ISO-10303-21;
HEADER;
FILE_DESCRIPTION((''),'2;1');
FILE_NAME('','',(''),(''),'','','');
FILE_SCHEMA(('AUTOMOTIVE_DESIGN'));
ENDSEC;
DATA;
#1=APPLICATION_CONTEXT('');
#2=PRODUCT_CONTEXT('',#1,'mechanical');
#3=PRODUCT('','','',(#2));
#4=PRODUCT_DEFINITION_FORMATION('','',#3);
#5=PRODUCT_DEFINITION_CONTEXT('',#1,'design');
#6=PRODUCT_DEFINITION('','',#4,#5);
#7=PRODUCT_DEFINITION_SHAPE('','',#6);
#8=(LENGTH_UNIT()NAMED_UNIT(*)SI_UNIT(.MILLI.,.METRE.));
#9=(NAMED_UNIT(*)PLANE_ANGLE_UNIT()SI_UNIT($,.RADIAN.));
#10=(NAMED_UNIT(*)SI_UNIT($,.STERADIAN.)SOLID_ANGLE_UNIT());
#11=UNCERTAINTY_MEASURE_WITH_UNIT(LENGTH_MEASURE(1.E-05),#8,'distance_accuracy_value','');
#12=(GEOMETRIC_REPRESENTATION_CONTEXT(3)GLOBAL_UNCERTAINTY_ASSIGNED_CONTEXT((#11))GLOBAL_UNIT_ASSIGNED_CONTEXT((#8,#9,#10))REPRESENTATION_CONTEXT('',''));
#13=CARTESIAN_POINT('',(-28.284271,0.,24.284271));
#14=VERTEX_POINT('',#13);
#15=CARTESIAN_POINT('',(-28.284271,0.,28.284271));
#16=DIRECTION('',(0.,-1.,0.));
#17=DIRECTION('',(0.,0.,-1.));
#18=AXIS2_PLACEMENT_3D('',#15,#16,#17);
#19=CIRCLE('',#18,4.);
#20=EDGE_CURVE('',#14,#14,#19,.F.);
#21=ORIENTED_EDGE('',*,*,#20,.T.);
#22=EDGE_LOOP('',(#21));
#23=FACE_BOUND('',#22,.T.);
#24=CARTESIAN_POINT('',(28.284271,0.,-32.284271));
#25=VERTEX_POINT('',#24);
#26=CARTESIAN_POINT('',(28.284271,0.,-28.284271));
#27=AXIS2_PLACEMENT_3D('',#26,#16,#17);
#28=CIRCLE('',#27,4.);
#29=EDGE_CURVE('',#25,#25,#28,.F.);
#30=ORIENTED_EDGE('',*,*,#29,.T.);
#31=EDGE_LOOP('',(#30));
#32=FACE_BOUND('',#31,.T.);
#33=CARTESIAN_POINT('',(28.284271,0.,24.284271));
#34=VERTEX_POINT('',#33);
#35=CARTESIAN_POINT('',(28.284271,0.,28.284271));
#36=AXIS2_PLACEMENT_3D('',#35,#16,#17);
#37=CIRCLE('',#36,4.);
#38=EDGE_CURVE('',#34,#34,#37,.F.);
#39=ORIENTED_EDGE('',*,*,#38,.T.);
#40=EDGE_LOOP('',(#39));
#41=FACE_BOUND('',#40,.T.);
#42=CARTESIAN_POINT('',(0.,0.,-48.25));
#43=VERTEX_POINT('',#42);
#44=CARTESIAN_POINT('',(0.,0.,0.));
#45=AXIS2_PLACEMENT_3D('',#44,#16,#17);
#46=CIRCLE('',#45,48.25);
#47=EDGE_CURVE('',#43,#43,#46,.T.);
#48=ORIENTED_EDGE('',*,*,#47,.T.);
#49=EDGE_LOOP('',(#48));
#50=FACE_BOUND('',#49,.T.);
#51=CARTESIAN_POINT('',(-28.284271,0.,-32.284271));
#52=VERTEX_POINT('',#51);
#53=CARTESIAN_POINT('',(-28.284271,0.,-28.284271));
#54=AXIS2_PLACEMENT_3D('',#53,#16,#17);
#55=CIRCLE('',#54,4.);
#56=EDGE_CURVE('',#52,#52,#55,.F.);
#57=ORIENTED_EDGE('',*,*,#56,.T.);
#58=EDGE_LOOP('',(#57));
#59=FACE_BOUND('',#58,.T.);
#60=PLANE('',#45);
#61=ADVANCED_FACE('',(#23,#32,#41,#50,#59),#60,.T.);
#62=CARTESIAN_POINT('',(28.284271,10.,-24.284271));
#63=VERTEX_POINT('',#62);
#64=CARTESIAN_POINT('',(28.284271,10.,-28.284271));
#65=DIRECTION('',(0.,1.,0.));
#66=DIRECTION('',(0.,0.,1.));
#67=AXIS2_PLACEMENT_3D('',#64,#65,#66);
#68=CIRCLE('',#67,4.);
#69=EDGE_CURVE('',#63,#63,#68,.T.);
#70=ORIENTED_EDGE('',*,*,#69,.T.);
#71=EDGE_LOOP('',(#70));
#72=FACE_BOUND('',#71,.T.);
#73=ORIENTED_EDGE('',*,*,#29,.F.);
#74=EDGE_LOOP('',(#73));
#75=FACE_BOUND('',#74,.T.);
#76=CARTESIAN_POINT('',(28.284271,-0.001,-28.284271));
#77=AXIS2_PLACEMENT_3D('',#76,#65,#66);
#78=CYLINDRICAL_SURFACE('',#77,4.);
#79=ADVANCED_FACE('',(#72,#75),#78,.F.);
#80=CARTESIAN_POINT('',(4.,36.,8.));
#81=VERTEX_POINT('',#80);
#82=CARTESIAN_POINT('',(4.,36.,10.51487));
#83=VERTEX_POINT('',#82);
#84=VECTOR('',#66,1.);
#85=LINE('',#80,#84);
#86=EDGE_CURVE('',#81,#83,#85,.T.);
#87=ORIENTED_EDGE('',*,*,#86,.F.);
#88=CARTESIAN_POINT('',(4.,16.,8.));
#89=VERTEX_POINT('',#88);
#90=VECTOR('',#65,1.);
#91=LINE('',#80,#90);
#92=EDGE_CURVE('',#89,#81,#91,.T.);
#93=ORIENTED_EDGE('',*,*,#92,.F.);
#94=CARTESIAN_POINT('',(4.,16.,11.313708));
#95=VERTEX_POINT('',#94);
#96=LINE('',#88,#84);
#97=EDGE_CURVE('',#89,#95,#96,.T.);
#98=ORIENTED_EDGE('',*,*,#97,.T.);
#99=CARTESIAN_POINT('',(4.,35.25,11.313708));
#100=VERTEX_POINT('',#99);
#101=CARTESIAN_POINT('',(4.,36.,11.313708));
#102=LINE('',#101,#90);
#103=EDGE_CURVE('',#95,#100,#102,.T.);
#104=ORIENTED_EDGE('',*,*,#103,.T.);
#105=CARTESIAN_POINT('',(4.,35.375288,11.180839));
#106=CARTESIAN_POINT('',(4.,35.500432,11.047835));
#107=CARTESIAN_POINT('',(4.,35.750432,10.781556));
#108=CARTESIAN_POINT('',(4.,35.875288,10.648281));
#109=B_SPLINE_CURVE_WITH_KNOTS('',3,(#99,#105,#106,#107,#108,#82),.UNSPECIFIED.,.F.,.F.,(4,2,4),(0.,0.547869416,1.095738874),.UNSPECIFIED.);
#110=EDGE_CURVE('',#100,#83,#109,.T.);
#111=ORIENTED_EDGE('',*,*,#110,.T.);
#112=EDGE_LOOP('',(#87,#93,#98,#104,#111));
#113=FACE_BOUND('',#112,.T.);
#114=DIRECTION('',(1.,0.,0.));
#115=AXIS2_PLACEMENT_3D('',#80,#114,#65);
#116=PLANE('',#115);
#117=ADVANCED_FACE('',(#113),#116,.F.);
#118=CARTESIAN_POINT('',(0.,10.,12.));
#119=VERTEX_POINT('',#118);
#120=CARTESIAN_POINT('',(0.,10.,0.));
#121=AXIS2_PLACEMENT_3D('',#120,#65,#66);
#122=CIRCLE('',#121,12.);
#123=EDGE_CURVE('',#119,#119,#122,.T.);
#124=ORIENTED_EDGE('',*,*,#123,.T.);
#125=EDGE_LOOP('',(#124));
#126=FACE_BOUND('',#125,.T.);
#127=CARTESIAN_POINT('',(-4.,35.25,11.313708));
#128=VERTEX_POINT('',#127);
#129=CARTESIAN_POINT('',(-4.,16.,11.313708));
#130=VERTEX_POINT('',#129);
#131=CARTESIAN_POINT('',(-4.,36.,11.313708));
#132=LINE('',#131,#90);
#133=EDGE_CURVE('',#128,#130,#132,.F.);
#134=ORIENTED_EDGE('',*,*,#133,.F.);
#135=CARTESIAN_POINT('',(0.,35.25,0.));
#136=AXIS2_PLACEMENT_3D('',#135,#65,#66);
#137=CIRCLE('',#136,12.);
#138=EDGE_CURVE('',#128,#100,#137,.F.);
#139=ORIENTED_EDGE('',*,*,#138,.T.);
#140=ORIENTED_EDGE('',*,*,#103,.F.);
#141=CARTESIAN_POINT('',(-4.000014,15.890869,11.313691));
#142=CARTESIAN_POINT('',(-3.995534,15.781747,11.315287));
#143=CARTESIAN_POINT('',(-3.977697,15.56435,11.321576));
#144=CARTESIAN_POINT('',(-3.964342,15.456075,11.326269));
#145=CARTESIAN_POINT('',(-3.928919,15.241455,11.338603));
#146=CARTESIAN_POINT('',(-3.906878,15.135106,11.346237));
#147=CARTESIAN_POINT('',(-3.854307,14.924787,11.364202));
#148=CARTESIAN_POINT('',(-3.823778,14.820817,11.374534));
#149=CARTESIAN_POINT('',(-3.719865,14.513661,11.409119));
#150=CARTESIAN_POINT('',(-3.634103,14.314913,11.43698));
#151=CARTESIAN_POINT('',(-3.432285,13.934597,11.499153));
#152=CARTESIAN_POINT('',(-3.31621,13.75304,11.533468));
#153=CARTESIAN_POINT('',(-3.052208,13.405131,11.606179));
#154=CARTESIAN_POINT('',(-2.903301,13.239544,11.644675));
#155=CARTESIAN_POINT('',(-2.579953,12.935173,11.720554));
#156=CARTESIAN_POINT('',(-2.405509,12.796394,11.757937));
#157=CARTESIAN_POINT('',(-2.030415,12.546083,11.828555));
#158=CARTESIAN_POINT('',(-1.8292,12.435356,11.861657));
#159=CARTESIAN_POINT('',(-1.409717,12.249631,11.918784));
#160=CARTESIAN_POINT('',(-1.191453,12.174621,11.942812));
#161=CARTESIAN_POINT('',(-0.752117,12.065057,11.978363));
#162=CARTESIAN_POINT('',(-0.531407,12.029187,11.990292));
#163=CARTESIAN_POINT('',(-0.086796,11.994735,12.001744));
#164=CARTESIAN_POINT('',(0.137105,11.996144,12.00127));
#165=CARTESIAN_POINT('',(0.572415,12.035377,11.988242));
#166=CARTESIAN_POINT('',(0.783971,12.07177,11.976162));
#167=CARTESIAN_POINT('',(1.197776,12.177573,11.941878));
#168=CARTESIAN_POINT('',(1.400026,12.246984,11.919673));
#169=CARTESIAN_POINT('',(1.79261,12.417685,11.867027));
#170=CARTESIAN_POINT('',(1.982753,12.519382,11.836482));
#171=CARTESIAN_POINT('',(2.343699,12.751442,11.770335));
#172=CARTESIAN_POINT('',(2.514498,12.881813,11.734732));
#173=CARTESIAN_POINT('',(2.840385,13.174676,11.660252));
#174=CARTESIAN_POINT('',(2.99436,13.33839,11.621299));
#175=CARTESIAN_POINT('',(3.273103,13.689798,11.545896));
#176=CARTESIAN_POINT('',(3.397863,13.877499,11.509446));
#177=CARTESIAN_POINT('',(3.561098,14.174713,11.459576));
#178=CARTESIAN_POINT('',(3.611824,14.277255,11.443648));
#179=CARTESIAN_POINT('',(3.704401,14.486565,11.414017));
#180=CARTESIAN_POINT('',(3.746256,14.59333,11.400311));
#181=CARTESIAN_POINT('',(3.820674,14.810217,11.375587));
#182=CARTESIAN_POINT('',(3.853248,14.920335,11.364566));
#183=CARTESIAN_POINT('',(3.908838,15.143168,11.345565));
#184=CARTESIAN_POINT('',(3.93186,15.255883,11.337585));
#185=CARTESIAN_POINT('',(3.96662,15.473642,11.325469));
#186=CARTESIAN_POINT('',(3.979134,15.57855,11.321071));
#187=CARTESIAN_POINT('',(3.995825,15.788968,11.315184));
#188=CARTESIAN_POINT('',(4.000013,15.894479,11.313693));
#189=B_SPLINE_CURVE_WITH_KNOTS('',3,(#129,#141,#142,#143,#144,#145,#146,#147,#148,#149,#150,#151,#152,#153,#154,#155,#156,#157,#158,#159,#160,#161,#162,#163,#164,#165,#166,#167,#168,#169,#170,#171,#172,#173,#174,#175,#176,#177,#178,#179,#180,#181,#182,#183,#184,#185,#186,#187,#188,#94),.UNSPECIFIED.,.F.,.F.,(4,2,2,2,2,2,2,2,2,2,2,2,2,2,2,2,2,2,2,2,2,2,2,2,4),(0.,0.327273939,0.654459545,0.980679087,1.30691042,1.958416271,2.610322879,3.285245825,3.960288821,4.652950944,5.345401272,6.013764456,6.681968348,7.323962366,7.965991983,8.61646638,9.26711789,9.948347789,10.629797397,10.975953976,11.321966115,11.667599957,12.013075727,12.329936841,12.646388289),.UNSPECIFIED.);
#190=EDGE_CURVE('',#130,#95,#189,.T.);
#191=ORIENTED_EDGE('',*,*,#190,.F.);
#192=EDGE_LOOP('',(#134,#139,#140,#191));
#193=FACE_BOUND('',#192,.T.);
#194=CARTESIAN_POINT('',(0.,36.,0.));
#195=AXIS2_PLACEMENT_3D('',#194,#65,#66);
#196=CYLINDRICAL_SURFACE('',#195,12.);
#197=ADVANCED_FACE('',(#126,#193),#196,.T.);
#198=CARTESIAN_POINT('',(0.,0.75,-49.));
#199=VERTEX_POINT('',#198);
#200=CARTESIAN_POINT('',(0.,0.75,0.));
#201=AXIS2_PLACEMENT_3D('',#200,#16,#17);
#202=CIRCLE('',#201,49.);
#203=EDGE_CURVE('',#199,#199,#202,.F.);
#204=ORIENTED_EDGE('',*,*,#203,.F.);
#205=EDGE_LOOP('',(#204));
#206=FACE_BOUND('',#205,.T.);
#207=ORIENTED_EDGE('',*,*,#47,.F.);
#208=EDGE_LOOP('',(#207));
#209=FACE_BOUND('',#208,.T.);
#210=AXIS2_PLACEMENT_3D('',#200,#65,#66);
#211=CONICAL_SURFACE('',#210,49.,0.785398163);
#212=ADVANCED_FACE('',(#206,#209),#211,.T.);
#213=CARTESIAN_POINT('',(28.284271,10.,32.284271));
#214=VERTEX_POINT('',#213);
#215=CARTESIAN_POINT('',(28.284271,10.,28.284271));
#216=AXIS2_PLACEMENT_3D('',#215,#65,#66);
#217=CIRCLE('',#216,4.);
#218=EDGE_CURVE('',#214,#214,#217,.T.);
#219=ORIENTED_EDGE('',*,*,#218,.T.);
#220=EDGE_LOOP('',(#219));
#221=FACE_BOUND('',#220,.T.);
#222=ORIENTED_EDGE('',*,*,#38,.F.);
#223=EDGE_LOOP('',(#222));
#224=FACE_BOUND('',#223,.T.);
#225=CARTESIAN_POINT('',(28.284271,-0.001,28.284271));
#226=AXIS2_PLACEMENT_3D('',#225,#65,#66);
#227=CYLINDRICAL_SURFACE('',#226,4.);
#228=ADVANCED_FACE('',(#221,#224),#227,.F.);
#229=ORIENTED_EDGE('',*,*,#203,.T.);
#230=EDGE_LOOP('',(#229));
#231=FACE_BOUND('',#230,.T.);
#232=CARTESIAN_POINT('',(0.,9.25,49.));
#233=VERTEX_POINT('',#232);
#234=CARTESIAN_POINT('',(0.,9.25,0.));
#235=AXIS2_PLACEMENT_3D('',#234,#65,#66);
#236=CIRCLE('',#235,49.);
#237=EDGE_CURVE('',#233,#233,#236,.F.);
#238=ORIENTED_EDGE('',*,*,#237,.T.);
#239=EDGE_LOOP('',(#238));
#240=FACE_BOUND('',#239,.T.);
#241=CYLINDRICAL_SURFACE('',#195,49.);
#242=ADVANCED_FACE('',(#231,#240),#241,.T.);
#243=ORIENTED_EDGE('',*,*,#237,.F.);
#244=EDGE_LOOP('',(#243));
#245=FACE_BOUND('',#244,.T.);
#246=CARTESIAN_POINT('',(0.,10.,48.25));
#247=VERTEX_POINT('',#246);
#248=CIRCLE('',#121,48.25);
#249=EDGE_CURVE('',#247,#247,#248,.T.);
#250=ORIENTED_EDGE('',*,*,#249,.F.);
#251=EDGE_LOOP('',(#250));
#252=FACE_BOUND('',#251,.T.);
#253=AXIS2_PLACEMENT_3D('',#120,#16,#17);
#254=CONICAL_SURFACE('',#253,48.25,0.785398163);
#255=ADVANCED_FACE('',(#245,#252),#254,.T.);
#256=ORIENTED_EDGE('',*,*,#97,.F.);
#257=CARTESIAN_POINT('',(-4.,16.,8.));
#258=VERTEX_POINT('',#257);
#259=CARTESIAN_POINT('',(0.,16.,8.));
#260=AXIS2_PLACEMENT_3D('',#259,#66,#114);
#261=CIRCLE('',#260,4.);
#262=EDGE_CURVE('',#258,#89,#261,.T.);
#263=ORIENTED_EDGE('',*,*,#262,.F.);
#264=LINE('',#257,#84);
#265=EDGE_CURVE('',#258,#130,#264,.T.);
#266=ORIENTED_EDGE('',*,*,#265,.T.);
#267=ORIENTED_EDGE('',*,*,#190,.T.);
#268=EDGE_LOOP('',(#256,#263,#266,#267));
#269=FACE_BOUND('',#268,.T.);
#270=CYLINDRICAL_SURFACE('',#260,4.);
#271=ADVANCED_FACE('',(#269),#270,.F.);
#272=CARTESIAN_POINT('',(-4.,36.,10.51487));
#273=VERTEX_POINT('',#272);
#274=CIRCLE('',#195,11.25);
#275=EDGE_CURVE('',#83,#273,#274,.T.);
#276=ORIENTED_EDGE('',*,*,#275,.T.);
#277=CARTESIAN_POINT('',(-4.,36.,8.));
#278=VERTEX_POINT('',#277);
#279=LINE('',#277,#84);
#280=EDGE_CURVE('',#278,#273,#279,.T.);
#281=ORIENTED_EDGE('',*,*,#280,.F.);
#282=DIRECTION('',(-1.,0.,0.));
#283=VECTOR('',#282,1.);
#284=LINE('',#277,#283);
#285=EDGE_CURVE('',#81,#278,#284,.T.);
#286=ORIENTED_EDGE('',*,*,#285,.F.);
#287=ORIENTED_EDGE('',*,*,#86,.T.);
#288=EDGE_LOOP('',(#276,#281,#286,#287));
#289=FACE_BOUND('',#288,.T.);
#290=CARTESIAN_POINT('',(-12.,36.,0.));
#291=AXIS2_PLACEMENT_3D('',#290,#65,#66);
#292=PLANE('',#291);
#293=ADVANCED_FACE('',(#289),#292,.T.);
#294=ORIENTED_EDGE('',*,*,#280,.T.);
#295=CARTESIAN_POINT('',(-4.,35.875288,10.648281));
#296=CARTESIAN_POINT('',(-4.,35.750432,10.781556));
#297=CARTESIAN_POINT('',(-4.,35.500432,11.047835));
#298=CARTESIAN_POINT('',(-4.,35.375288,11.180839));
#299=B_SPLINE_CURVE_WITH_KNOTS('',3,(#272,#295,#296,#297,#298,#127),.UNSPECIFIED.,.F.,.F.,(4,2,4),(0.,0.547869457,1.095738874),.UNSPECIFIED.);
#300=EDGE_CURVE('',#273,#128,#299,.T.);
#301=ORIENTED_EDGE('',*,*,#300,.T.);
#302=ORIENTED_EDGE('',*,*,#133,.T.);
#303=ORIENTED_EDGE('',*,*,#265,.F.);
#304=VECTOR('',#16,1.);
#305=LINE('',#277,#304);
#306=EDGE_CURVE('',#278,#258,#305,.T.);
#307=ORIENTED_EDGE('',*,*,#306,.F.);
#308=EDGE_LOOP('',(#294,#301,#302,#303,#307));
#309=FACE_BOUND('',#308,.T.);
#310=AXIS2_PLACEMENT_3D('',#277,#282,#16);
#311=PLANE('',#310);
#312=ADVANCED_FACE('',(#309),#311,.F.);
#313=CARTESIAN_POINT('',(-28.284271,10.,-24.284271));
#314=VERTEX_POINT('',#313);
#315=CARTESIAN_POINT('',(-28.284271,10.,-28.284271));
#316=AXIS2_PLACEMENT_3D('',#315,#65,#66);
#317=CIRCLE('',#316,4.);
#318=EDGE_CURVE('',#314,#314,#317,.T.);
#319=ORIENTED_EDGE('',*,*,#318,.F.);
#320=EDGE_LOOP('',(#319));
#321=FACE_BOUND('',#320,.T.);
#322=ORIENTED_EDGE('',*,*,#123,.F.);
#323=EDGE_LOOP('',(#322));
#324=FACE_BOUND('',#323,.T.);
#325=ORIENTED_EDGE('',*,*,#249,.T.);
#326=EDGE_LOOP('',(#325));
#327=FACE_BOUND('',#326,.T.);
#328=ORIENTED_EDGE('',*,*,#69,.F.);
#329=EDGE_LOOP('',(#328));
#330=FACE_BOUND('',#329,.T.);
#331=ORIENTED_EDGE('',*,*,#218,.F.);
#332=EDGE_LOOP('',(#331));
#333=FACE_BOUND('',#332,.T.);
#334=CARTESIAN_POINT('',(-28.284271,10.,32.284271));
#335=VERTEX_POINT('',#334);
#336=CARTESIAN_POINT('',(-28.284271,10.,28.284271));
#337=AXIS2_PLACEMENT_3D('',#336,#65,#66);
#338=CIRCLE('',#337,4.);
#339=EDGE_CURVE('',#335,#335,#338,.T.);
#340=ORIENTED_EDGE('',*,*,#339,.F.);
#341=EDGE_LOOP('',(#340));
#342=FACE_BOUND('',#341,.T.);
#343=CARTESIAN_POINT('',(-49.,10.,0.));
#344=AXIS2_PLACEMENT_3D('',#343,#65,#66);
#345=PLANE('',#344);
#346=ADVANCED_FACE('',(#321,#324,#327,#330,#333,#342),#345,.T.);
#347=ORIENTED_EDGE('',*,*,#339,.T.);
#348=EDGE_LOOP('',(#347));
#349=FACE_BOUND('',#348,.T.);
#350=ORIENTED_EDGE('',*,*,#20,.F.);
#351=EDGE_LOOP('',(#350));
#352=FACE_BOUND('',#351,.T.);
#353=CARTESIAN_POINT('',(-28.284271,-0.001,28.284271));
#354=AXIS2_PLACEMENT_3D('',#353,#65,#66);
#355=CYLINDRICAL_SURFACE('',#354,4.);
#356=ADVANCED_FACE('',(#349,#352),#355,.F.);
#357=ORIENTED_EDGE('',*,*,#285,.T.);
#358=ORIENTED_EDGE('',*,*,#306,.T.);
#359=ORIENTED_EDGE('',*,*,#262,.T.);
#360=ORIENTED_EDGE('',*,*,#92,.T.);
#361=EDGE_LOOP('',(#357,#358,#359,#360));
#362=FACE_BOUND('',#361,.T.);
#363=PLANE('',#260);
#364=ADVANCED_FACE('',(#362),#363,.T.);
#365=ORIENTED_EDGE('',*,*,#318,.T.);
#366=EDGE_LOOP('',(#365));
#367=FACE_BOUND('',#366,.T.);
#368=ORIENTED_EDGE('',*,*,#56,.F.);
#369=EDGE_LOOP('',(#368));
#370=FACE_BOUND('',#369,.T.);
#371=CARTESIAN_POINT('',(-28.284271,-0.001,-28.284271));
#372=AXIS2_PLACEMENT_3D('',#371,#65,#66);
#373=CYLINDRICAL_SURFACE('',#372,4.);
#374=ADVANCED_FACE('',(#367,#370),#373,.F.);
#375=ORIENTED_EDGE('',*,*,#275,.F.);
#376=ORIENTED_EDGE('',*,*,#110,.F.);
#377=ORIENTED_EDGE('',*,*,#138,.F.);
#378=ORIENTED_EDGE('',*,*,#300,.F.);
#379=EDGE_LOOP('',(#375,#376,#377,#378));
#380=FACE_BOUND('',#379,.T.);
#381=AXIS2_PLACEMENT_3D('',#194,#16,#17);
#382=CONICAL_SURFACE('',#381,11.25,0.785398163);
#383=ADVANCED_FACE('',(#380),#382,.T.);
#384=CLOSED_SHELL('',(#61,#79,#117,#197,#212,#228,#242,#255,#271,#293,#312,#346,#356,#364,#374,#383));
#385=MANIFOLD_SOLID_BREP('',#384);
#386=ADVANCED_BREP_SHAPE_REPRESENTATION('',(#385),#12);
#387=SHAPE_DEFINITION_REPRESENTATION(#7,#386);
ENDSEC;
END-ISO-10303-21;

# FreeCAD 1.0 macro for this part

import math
import FreeCAD as App
import Part
import Sketcher


def edges_at(feature, points):
    """Names of the edges that pass closest to the given points."""
    edges = feature.Shape.Edges
    near = lambda p: min(range(len(edges)), key=lambda i: edges[i].distToShape(Part.Vertex(*p))[0])
    return sorted({f"Edge{near(p) + 1}" for p in points})


def add_polygon(sketch, points):
    """Adds a closed chain of lines whose ends are joined by coincident constraints."""
    first, n = sketch.GeometryCount, len(points)
    for a, b in zip(points, points[1:] + points[:1]):
        sketch.addGeometry(Part.LineSegment(App.Vector(*a, 0), App.Vector(*b, 0)), False)
    for i in range(n):
        sketch.addConstraint(Sketcher.Constraint("Coincident", first + i, 2, first + (i + 1) % n, 1))

doc = App.newDocument("Part")
body = doc.addObject("PartDesign::Body", "Body")

sketch1 = body.newObject("Sketcher::SketchObject", "Sketch")
sketch1.AttachmentSupport = (doc.getObject("XY_Plane"), [""])
sketch1.MapMode = "FlatFace"
add_polygon(sketch1, [(-49, 0), (0, 0), (0, 36), (-12, 36), (-12, 10), (-49, 10)])
sketch1.addConstraint(Sketcher.Constraint("Horizontal", 0))
sketch1.addConstraint(Sketcher.Constraint("Vertical", 1))
sketch1.addConstraint(Sketcher.Constraint("Horizontal", 2))
sketch1.addConstraint(Sketcher.Constraint("Vertical", 3))
sketch1.addConstraint(Sketcher.Constraint("Horizontal", 4))
sketch1.addConstraint(Sketcher.Constraint("Vertical", 5))
sketch1.addConstraint(Sketcher.Constraint("Coincident", 0, 2, -1, 1))
sketch1.addConstraint(Sketcher.Constraint("DistanceX", 0, 1, 0, 2, 49.0))
sketch1.addConstraint(Sketcher.Constraint("DistanceX", 2, 2, 2, 1, 12.0))
sketch1.addConstraint(Sketcher.Constraint("DistanceY", 1, 1, 1, 2, 36.0))
sketch1.addConstraint(Sketcher.Constraint("DistanceY", 3, 2, 3, 1, 26.0))
revolution = body.newObject("PartDesign::Revolution", "Revolution")
revolution.Profile = sketch1
revolution.ReferenceAxis = (sketch1, ["V_Axis"])
revolution.Angle = 360

sketch2 = body.newObject("Sketcher::SketchObject", "Sketch001")
sketch2.AttachmentSupport = (doc.getObject("XZ_Plane"), [""])
sketch2.MapMode = "FlatFace"
sketch2.AttachmentOffset = App.Placement(App.Vector(0, 0, -10), App.Rotation())
sketch2.addGeometry(Part.Circle(App.Vector(-28.3, -28.3, 0), App.Vector(0, 0, 1), 4), False)
sketch2.addConstraint(Sketcher.Constraint("Diameter", 0, 8.0))
sketch2.addConstraint(Sketcher.Constraint("DistanceX", 0, 3, -1, 1, 28.284271))
sketch2.addConstraint(Sketcher.Constraint("DistanceY", 0, 3, -1, 1, 28.284271))
pocket1 = body.newObject("PartDesign::Pocket", "Pocket")
pocket1.Profile = sketch2
pocket1.Type = "UpToFirst"
pocket1.Reversed = True

sketch3 = body.newObject("Sketcher::SketchObject", "Sketch002")
sketch3.AttachmentSupport = (doc.getObject("XZ_Plane"), [""])
sketch3.MapMode = "FlatFace"
sketch3.AttachmentOffset = App.Placement(App.Vector(0, 0, -10), App.Rotation())
sketch3.addGeometry(Part.Circle(App.Vector(28.3, -28.3, 0), App.Vector(0, 0, 1), 4), False)
sketch3.addConstraint(Sketcher.Constraint("Diameter", 0, 8.0))
sketch3.addConstraint(Sketcher.Constraint("DistanceX", -1, 1, 0, 3, 28.284271))
sketch3.addConstraint(Sketcher.Constraint("DistanceY", 0, 3, -1, 1, 28.284271))
pocket2 = body.newObject("PartDesign::Pocket", "Pocket001")
pocket2.Profile = sketch3
pocket2.Type = "UpToFirst"
pocket2.Reversed = True

sketch4 = body.newObject("Sketcher::SketchObject", "Sketch003")
sketch4.AttachmentSupport = (doc.getObject("XZ_Plane"), [""])
sketch4.MapMode = "FlatFace"
sketch4.AttachmentOffset = App.Placement(App.Vector(0, 0, -10), App.Rotation())
sketch4.addGeometry(Part.Circle(App.Vector(28.3, 28.3, 0), App.Vector(0, 0, 1), 4), False)
sketch4.addConstraint(Sketcher.Constraint("Diameter", 0, 8.0))
sketch4.addConstraint(Sketcher.Constraint("DistanceX", -1, 1, 0, 3, 28.284271))
sketch4.addConstraint(Sketcher.Constraint("DistanceY", -1, 1, 0, 3, 28.284271))
pocket3 = body.newObject("PartDesign::Pocket", "Pocket002")
pocket3.Profile = sketch4
pocket3.Type = "UpToFirst"
pocket3.Reversed = True

sketch5 = body.newObject("Sketcher::SketchObject", "Sketch004")
sketch5.AttachmentSupport = (doc.getObject("XZ_Plane"), [""])
sketch5.MapMode = "FlatFace"
sketch5.AttachmentOffset = App.Placement(App.Vector(0, 0, -10), App.Rotation())
sketch5.addGeometry(Part.Circle(App.Vector(-28.3, 28.3, 0), App.Vector(0, 0, 1), 4), False)
sketch5.addConstraint(Sketcher.Constraint("Diameter", 0, 8.0))
sketch5.addConstraint(Sketcher.Constraint("DistanceX", 0, 3, -1, 1, 28.284271))
sketch5.addConstraint(Sketcher.Constraint("DistanceY", -1, 1, 0, 3, 28.284271))
pocket4 = body.newObject("PartDesign::Pocket", "Pocket003")
pocket4.Profile = sketch5
pocket4.Type = "UpToFirst"
pocket4.Reversed = True

sketch6 = body.newObject("Sketcher::SketchObject", "Sketch005")
sketch6.AttachmentSupport = (doc.getObject("XY_Plane"), [""])
sketch6.MapMode = "FlatFace"
sketch6.AttachmentOffset = App.Placement(App.Vector(0, 0, 12), App.Rotation())
sketch6.addGeometry(Part.LineSegment(App.Vector(4, 36, 0), App.Vector(-4, 36, 0)), False)
sketch6.addGeometry(Part.LineSegment(App.Vector(-4, 36, 0), App.Vector(-4, 16, 0)), False)
sketch6.addGeometry(Part.ArcOfCircle(Part.Circle(App.Vector(0, 16, 0), App.Vector(0, 0, 1), 4), math.radians(180), math.radians(360)), False)
sketch6.addGeometry(Part.LineSegment(App.Vector(4, 16, 0), App.Vector(4, 36, 0)), False)
sketch6.addConstraint(Sketcher.Constraint("Coincident", 0, 2, 1, 1))
sketch6.addConstraint(Sketcher.Constraint("Tangent", 1, 2, 2, 1))
sketch6.addConstraint(Sketcher.Constraint("Tangent", 2, 2, 3, 1))
sketch6.addConstraint(Sketcher.Constraint("Coincident", 3, 2, 0, 1))
sketch6.addConstraint(Sketcher.Constraint("Horizontal", 0))
sketch6.addConstraint(Sketcher.Constraint("Vertical", 1))
sketch6.addConstraint(Sketcher.Constraint("Vertical", 3))
sketch6.addConstraint(Sketcher.Constraint("PointOnObject", 2, 3, -2))
sketch6.addConstraint(Sketcher.Constraint("Radius", 2, 4.0))
sketch6.addConstraint(Sketcher.Constraint("DistanceY", 1, 2, 1, 1, 20.0))
sketch6.addConstraint(Sketcher.Constraint("DistanceY", -1, 1, 2, 3, 16.0))
pocket5 = body.newObject("PartDesign::Pocket", "Pocket004")
pocket5.Profile = sketch6
pocket5.Length = 4
doc.recompute()

chamfer = body.newObject("PartDesign::Chamfer", "Chamfer")
chamfer.Base = (pocket5, edges_at(pocket5, [(6.928, 36, -9.798), (49, 10, 0), (49, 0, 0)]))
chamfer.Size = 0.75

doc.recompute()
